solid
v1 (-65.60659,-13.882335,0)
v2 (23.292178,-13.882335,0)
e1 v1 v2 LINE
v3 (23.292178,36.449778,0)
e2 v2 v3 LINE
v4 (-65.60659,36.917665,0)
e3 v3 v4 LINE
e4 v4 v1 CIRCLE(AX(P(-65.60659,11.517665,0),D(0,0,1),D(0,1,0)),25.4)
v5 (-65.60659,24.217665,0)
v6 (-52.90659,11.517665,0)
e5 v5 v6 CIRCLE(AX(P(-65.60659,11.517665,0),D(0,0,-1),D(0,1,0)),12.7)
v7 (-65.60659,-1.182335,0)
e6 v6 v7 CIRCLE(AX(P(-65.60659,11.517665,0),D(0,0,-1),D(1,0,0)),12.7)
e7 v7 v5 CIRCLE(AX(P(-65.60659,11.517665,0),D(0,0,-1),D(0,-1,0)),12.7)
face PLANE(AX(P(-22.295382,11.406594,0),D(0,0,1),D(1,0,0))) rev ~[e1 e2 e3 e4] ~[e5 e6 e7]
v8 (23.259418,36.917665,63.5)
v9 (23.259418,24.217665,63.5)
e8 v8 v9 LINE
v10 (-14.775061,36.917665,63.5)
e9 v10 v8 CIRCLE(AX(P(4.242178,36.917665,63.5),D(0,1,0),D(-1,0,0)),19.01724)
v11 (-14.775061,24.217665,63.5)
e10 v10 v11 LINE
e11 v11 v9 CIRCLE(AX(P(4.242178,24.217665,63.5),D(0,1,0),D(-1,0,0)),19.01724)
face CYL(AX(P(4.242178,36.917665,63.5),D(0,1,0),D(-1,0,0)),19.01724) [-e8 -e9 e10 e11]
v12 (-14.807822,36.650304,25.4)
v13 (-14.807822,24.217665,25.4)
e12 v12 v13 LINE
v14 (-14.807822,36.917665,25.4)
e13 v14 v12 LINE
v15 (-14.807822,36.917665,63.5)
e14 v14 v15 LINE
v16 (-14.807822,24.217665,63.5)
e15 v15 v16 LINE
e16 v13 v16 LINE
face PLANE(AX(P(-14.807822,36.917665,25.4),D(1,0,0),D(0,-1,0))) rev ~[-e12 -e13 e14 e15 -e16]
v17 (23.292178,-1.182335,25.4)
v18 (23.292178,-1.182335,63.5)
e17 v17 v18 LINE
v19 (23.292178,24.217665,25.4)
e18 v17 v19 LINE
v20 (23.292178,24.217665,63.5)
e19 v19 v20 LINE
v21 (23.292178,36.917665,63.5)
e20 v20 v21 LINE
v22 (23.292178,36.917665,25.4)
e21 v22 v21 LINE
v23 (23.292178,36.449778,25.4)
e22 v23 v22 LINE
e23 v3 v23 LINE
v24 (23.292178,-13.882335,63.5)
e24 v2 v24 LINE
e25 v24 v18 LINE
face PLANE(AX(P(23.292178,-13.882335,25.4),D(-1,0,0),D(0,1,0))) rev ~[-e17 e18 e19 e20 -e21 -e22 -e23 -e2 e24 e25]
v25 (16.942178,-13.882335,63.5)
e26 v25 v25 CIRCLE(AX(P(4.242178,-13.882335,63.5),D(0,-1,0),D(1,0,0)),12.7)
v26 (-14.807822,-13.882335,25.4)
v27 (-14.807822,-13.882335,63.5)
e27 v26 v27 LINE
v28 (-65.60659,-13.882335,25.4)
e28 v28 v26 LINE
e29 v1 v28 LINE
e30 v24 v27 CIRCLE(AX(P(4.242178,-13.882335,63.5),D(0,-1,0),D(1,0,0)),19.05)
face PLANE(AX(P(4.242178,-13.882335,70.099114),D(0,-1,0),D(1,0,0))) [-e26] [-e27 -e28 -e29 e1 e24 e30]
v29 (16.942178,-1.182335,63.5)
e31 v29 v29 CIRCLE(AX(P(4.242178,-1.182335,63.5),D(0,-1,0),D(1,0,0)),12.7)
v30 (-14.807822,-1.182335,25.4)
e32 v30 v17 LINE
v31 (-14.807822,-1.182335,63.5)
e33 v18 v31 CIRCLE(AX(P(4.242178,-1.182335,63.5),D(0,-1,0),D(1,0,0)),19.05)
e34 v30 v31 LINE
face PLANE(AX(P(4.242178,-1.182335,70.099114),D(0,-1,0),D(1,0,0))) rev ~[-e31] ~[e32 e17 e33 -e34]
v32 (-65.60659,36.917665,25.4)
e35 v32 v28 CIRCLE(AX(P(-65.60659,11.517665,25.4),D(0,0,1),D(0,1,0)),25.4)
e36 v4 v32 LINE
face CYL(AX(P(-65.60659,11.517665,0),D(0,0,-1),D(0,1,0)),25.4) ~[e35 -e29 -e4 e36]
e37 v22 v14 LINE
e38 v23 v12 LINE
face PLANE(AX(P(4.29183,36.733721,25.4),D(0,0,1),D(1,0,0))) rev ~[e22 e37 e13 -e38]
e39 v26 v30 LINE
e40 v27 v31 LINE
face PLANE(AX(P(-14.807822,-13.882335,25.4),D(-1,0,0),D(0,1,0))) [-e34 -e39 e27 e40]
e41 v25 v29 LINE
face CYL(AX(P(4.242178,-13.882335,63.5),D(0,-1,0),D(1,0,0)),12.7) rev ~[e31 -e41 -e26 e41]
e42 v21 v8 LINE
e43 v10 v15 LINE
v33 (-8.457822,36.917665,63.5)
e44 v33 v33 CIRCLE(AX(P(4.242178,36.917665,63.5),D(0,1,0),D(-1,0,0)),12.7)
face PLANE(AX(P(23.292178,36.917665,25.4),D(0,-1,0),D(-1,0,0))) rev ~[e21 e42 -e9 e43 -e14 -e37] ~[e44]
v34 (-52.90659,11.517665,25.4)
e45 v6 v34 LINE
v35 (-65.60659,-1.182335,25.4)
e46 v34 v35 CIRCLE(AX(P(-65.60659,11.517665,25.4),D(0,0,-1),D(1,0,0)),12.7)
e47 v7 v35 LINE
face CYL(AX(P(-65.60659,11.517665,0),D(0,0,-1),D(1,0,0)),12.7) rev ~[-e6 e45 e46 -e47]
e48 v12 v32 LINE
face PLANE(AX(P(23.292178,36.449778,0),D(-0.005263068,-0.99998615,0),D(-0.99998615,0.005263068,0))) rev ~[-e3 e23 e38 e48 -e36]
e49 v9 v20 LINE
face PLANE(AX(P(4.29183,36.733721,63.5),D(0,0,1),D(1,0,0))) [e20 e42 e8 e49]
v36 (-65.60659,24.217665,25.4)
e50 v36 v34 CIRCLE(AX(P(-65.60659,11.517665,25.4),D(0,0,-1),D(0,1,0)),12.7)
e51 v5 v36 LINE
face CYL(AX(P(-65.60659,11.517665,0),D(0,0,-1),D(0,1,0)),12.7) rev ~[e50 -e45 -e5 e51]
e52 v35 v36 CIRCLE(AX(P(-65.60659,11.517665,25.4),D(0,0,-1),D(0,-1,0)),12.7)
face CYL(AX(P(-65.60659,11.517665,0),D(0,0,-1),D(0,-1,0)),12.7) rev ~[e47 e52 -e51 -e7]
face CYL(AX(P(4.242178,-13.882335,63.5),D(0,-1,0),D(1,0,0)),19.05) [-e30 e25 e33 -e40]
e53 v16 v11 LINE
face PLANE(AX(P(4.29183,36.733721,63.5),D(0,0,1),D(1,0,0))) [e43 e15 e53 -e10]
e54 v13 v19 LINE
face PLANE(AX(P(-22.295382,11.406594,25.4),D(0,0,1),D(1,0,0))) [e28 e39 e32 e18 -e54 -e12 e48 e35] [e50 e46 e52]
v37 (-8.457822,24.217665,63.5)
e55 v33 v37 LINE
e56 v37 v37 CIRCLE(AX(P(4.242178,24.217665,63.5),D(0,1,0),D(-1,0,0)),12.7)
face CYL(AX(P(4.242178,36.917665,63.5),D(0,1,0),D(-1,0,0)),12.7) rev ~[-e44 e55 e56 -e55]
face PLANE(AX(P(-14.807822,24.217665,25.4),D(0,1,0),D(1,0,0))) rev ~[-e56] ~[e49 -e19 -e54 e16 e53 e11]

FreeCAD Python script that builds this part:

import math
import FreeCAD as App
import Part
import Sketcher
Q = App.Units.Quantity

doc = App.newDocument("Part")
body = doc.addObject("PartDesign::Body", "Body")

# Sketch on XY plane
sketch1 = body.newObject("Sketcher::SketchObject", "Sketch")
sketch1.AttachmentSupport = (doc.getObject("XY_Plane"), [""])
sketch1.MapMode = "FlatFace"
sketch1.addGeometry(Part.LineSegment(App.Vector(23.292178, 36.449778, 0), App.Vector(-65.60659, 36.917665, 0)), False)
sketch1.addGeometry(Part.ArcOfCircle(Part.Circle(App.Vector(-65.60659, 11.517665, 0), App.Vector(0, 0, 1), 25.4), math.radians(90), math.radians(270)), False)
sketch1.addGeometry(Part.LineSegment(App.Vector(-65.60659, -13.882335, 0), App.Vector(23.292178, -13.882335, 0)), False)
sketch1.addGeometry(Part.LineSegment(App.Vector(23.292178, -13.882335, 0), App.Vector(23.292178, 36.449778, 0)), False)
sketch1.addGeometry(Part.ArcOfCircle(Part.Circle(App.Vector(-65.60659, 11.517665, 0), App.Vector(0, 0, 1), 12.7), math.radians(0), math.radians(90)), False)
sketch1.addGeometry(Part.ArcOfCircle(Part.Circle(App.Vector(-65.60659, 11.517665, 0), App.Vector(0, 0, 1), 12.7), math.radians(-90), math.radians(0)), False)
sketch1.addGeometry(Part.ArcOfCircle(Part.Circle(App.Vector(-65.60659, 11.517665, 0), App.Vector(0, 0, 1), 12.7), math.radians(90), math.radians(270)), False)
sketch1.addConstraint(Sketcher.Constraint("Coincident", 0, 2, 1, 1))
sketch1.addConstraint(Sketcher.Constraint("Coincident", 1, 2, 2, 1))
sketch1.addConstraint(Sketcher.Constraint("Coincident", 2, 2, 3, 1))
sketch1.addConstraint(Sketcher.Constraint("Coincident", 3, 2, 0, 1))
sketch1.addConstraint(Sketcher.Constraint("Coincident", 4, 1, 5, 2))
sketch1.addConstraint(Sketcher.Constraint("Coincident", 5, 1, 6, 2))
sketch1.addConstraint(Sketcher.Constraint("Coincident", 6, 1, 4, 2))
sketch1.addConstraint(Sketcher.Constraint("Horizontal", 2))
sketch1.addConstraint(Sketcher.Constraint("Vertical", 3))
sketch1.addConstraint(Sketcher.Constraint("Coincident", 4, 3, 1, 3))
sketch1.addConstraint(Sketcher.Constraint("Coincident", 5, 3, 1, 3))
sketch1.addConstraint(Sketcher.Constraint("Radius", 1, Q("1 in")))
sketch1.addConstraint(Sketcher.Constraint("Radius", 4, Q("0.5 in")))
sketch1.addConstraint(Sketcher.Constraint("DistanceY", 4, 1, 0, 2, Q("1 in")))
sketch1.addConstraint(Sketcher.Constraint("Distance", 0, Q("3.5 in")))
sketch1.addConstraint(Sketcher.Constraint("DistanceX", 6, 3, 4, 1, Q("0.5 in")))
sketch1.addConstraint(Sketcher.Constraint("DistanceX", 0, 2, 4, 1, Q("0.5 in")))
sketch1.addConstraint(Sketcher.Constraint("DistanceX", 2, 1, 2, 2, Q("88.898769 mm")))
sketch1.addConstraint(Sketcher.Constraint("DistanceY", 3, 1, 3, 2, Q("50.332113 mm")))
sketch1.addConstraint(Sketcher.Constraint("DistanceX", 1, 3, -1, 1, Q("65.60659 mm")))
sketch1.addConstraint(Sketcher.Constraint("DistanceY", -1, 1, 3, 2, Q("36.449778 mm")))
sketch1.addConstraint(Sketcher.Constraint("DistanceX", 5, 1, -1, 1, Q("65.60659 mm")))
sketch1.addConstraint(Sketcher.Constraint("DistanceX", 6, 1, -1, 1, Q("65.60659 mm")))
pad1 = body.newObject("PartDesign::Pad", "Pad")
pad1.Profile = sketch1
pad1.Length = Q("1 in")

# Sketch on XY plane
sketch2 = body.newObject("Sketcher::SketchObject", "Sketch001")
sketch2.AttachmentSupport = (doc.getObject("XY_Plane"), [""])
sketch2.MapMode = "FlatFace"
sketch2.AttachmentOffset = App.Placement(App.Vector(0, 0, 1 * 25.4), App.Rotation())
sketch2.addGeometry(Part.LineSegment(App.Vector(-14.807822, 36.917665, 0), App.Vector(-14.807822, 24.217665, 0)), False)
sketch2.addGeometry(Part.LineSegment(App.Vector(-14.807822, 24.217665, 0), App.Vector(23.292178, 24.217665, 0)), False)
sketch2.addGeometry(Part.LineSegment(App.Vector(23.292178, 24.217665, 0), App.Vector(23.292178, 36.917665, 0)), False)
sketch2.addGeometry(Part.LineSegment(App.Vector(23.292178, 36.917665, 0), App.Vector(-14.807822, 36.917665, 0)), False)
sketch2.addConstraint(Sketcher.Constraint("Coincident", 0, 2, 1, 1))
sketch2.addConstraint(Sketcher.Constraint("Coincident", 1, 2, 2, 1))
sketch2.addConstraint(Sketcher.Constraint("Coincident", 2, 2, 3, 1))
sketch2.addConstraint(Sketcher.Constraint("Coincident", 3, 2, 0, 1))
sketch2.addConstraint(Sketcher.Constraint("Vertical", 0))
sketch2.addConstraint(Sketcher.Constraint("Horizontal", 1))
sketch2.addConstraint(Sketcher.Constraint("Vertical", 2))
sketch2.addConstraint(Sketcher.Constraint("Horizontal", 3))
sketch2.addConstraint(Sketcher.Constraint("DistanceX", 1, 1, 1, 2, Q("1.5 in")))
sketch2.addConstraint(Sketcher.Constraint("DistanceY", 0, 2, 0, 1, Q("0.5 in")))
sketch2.addConstraint(Sketcher.Constraint("DistanceX", 0, 2, -1, 1, Q("14.807822 mm")))
sketch2.addConstraint(Sketcher.Constraint("DistanceY", -1, 1, 0, 2, Q("24.217665 mm")))
pad2 = body.newObject("PartDesign::Pad", "Pad001")
pad2.Profile = sketch2
pad2.Length = Q("1.5 in")

# Sketch on XY plane
sketch3 = body.newObject("Sketcher::SketchObject", "Sketch002")
sketch3.AttachmentSupport = (doc.getObject("XY_Plane"), [""])
sketch3.MapMode = "FlatFace"
sketch3.AttachmentOffset = App.Placement(App.Vector(0, 0, 1 * 25.4), App.Rotation())
sketch3.addGeometry(Part.LineSegment(App.Vector(-14.807822, -1.182335, 0), App.Vector(-14.807822, -13.882335, 0)), False)
sketch3.addGeometry(Part.LineSegment(App.Vector(-14.807822, -13.882335, 0), App.Vector(23.292178, -13.882335, 0)), False)
sketch3.addGeometry(Part.LineSegment(App.Vector(23.292178, -13.882335, 0), App.Vector(23.292178, -1.182335, 0)), False)
sketch3.addGeometry(Part.LineSegment(App.Vector(23.292178, -1.182335, 0), App.Vector(-14.807822, -1.182335, 0)), False)
sketch3.addConstraint(Sketcher.Constraint("Coincident", 0, 2, 1, 1))
sketch3.addConstraint(Sketcher.Constraint("Coincident", 1, 2, 2, 1))
sketch3.addConstraint(Sketcher.Constraint("Coincident", 2, 2, 3, 1))
sketch3.addConstraint(Sketcher.Constraint("Coincident", 3, 2, 0, 1))
sketch3.addConstraint(Sketcher.Constraint("Vertical", 0))
sketch3.addConstraint(Sketcher.Constraint("Horizontal", 1))
sketch3.addConstraint(Sketcher.Constraint("Vertical", 2))
sketch3.addConstraint(Sketcher.Constraint("Horizontal", 3))
sketch3.addConstraint(Sketcher.Constraint("DistanceX", 1, 1, 1, 2, Q("1.5 in")))
sketch3.addConstraint(Sketcher.Constraint("DistanceY", 0, 2, 0, 1, Q("0.5 in")))
sketch3.addConstraint(Sketcher.Constraint("DistanceX", 0, 2, -1, 1, Q("14.807822 mm")))
sketch3.addConstraint(Sketcher.Constraint("DistanceY", 0, 2, -1, 1, Q("13.882335 mm")))
pad3 = body.newObject("PartDesign::Pad", "Pad002")
pad3.Profile = sketch3
pad3.Length = Q("1.5 in")

# Sketch on XZ plane
sketch4 = body.newObject("Sketcher::SketchObject", "Sketch003")
sketch4.AttachmentSupport = (doc.getObject("XZ_Plane"), [""])
sketch4.MapMode = "FlatFace"
sketch4.AttachmentOffset = App.Placement(App.Vector(0, 0, -36.917665), App.Rotation())
sketch4.addGeometry(Part.LineSegment(App.Vector(23.259418, 63.5, 0), App.Vector(-14.775061, 63.5, 0)), False)
sketch4.addGeometry(Part.ArcOfCircle(Part.Circle(App.Vector(4.242178, 63.5, 0), App.Vector(0, 0, 1), 19.01724), math.radians(0), math.radians(180)), False)
sketch4.addConstraint(Sketcher.Constraint("Coincident", 0, 1, 1, 1))
sketch4.addConstraint(Sketcher.Constraint("Coincident", 1, 2, 0, 2))
sketch4.addConstraint(Sketcher.Constraint("Horizontal", 0))
sketch4.addConstraint(Sketcher.Constraint("Horizontal", 1, 3, 0, 1))
sketch4.addConstraint(Sketcher.Constraint("DistanceY", -1, 1, 1, 3, Q("2.5 in")))
sketch4.addConstraint(Sketcher.Constraint("Radius", 1, Q("19.01724 mm")))
sketch4.addConstraint(Sketcher.Constraint("DistanceX", -1, 1, 1, 3, Q("4.242178 mm")))
pad4 = body.newObject("PartDesign::Pad", "Pad003")
pad4.Profile = sketch4
pad4.Length = Q("0.5 in")

# Sketch on XZ plane
sketch5 = body.newObject("Sketcher::SketchObject", "Sketch004")
sketch5.AttachmentSupport = (doc.getObject("XZ_Plane"), [""])
sketch5.MapMode = "FlatFace"
sketch5.AttachmentOffset = App.Placement(App.Vector(0, 0, -36.917665), App.Rotation())
sketch5.addGeometry(Part.Circle(App.Vector(4.242178, 63.5, 0), App.Vector(0, 0, 1), 12.7), False)
sketch5.addConstraint(Sketcher.Constraint("Diameter", 0, Q("1 in")))
sketch5.addConstraint(Sketcher.Constraint("DistanceY", -1, 1, 0, 3, Q("2.5 in")))
sketch5.addConstraint(Sketcher.Constraint("DistanceX", -1, 1, 0, 3, Q("4.242178 mm")))
pocket1 = body.newObject("PartDesign::Pocket", "Pocket")
pocket1.Profile = sketch5
pocket1.Length = Q("1.5 in")
pocket1.Reversed = True

# Sketch on XZ plane
sketch6 = body.newObject("Sketcher::SketchObject", "Sketch005")
sketch6.AttachmentSupport = (doc.getObject("XZ_Plane"), [""])
sketch6.MapMode = "FlatFace"
sketch6.AttachmentOffset = App.Placement(App.Vector(0, 0, 13.882335), App.Rotation())
sketch6.addGeometry(Part.LineSegment(App.Vector(-14.807822, 63.5, 0), App.Vector(23.292178, 63.5, 0)), False)
sketch6.addGeometry(Part.ArcOfCircle(Part.Circle(App.Vector(4.242178, 63.5, 0), App.Vector(0, 0, 1), 19.05), math.radians(0), math.radians(180)), False)
sketch6.addConstraint(Sketcher.Constraint("Coincident", 0, 1, 1, 2))
sketch6.addConstraint(Sketcher.Constraint("Coincident", 1, 1, 0, 2))
sketch6.addConstraint(Sketcher.Constraint("Horizontal", 0))
sketch6.addConstraint(Sketcher.Constraint("Horizontal", 1, 3, 0, 1))
sketch6.addConstraint(Sketcher.Constraint("Radius", 1, Q("0.75 in")))
sketch6.addConstraint(Sketcher.Constraint("DistanceY", -1, 1, 1, 3, Q("2.5 in")))
sketch6.addConstraint(Sketcher.Constraint("DistanceX", -1, 1, 1, 3, Q("4.242178 mm")))
pad5 = body.newObject("PartDesign::Pad", "Pad004")
pad5.Profile = sketch6
pad5.Length = Q("0.5 in")
pad5.Reversed = True

# Sketch on XZ plane
sketch7 = body.newObject("Sketcher::SketchObject", "Sketch006")
sketch7.AttachmentSupport = (doc.getObject("XZ_Plane"), [""])
sketch7.MapMode = "FlatFace"
sketch7.AttachmentOffset = App.Placement(App.Vector(0, 0, 13.882335), App.Rotation())
sketch7.addGeometry(Part.Circle(App.Vector(4.242178, 63.5, 0), App.Vector(0, 0, 1), 12.7), False)
sketch7.addConstraint(Sketcher.Constraint("Diameter", 0, Q("1 in")))
sketch7.addConstraint(Sketcher.Constraint("DistanceY", -1, 1, 0, 3, Q("2.5 in")))
sketch7.addConstraint(Sketcher.Constraint("DistanceX", -1, 1, 0, 3, Q("4.242178 mm")))
pocket2 = body.newObject("PartDesign::Pocket", "Pocket001")
pocket2.Profile = sketch7
pocket2.Length = Q("1.5 in")

doc.recompute()
